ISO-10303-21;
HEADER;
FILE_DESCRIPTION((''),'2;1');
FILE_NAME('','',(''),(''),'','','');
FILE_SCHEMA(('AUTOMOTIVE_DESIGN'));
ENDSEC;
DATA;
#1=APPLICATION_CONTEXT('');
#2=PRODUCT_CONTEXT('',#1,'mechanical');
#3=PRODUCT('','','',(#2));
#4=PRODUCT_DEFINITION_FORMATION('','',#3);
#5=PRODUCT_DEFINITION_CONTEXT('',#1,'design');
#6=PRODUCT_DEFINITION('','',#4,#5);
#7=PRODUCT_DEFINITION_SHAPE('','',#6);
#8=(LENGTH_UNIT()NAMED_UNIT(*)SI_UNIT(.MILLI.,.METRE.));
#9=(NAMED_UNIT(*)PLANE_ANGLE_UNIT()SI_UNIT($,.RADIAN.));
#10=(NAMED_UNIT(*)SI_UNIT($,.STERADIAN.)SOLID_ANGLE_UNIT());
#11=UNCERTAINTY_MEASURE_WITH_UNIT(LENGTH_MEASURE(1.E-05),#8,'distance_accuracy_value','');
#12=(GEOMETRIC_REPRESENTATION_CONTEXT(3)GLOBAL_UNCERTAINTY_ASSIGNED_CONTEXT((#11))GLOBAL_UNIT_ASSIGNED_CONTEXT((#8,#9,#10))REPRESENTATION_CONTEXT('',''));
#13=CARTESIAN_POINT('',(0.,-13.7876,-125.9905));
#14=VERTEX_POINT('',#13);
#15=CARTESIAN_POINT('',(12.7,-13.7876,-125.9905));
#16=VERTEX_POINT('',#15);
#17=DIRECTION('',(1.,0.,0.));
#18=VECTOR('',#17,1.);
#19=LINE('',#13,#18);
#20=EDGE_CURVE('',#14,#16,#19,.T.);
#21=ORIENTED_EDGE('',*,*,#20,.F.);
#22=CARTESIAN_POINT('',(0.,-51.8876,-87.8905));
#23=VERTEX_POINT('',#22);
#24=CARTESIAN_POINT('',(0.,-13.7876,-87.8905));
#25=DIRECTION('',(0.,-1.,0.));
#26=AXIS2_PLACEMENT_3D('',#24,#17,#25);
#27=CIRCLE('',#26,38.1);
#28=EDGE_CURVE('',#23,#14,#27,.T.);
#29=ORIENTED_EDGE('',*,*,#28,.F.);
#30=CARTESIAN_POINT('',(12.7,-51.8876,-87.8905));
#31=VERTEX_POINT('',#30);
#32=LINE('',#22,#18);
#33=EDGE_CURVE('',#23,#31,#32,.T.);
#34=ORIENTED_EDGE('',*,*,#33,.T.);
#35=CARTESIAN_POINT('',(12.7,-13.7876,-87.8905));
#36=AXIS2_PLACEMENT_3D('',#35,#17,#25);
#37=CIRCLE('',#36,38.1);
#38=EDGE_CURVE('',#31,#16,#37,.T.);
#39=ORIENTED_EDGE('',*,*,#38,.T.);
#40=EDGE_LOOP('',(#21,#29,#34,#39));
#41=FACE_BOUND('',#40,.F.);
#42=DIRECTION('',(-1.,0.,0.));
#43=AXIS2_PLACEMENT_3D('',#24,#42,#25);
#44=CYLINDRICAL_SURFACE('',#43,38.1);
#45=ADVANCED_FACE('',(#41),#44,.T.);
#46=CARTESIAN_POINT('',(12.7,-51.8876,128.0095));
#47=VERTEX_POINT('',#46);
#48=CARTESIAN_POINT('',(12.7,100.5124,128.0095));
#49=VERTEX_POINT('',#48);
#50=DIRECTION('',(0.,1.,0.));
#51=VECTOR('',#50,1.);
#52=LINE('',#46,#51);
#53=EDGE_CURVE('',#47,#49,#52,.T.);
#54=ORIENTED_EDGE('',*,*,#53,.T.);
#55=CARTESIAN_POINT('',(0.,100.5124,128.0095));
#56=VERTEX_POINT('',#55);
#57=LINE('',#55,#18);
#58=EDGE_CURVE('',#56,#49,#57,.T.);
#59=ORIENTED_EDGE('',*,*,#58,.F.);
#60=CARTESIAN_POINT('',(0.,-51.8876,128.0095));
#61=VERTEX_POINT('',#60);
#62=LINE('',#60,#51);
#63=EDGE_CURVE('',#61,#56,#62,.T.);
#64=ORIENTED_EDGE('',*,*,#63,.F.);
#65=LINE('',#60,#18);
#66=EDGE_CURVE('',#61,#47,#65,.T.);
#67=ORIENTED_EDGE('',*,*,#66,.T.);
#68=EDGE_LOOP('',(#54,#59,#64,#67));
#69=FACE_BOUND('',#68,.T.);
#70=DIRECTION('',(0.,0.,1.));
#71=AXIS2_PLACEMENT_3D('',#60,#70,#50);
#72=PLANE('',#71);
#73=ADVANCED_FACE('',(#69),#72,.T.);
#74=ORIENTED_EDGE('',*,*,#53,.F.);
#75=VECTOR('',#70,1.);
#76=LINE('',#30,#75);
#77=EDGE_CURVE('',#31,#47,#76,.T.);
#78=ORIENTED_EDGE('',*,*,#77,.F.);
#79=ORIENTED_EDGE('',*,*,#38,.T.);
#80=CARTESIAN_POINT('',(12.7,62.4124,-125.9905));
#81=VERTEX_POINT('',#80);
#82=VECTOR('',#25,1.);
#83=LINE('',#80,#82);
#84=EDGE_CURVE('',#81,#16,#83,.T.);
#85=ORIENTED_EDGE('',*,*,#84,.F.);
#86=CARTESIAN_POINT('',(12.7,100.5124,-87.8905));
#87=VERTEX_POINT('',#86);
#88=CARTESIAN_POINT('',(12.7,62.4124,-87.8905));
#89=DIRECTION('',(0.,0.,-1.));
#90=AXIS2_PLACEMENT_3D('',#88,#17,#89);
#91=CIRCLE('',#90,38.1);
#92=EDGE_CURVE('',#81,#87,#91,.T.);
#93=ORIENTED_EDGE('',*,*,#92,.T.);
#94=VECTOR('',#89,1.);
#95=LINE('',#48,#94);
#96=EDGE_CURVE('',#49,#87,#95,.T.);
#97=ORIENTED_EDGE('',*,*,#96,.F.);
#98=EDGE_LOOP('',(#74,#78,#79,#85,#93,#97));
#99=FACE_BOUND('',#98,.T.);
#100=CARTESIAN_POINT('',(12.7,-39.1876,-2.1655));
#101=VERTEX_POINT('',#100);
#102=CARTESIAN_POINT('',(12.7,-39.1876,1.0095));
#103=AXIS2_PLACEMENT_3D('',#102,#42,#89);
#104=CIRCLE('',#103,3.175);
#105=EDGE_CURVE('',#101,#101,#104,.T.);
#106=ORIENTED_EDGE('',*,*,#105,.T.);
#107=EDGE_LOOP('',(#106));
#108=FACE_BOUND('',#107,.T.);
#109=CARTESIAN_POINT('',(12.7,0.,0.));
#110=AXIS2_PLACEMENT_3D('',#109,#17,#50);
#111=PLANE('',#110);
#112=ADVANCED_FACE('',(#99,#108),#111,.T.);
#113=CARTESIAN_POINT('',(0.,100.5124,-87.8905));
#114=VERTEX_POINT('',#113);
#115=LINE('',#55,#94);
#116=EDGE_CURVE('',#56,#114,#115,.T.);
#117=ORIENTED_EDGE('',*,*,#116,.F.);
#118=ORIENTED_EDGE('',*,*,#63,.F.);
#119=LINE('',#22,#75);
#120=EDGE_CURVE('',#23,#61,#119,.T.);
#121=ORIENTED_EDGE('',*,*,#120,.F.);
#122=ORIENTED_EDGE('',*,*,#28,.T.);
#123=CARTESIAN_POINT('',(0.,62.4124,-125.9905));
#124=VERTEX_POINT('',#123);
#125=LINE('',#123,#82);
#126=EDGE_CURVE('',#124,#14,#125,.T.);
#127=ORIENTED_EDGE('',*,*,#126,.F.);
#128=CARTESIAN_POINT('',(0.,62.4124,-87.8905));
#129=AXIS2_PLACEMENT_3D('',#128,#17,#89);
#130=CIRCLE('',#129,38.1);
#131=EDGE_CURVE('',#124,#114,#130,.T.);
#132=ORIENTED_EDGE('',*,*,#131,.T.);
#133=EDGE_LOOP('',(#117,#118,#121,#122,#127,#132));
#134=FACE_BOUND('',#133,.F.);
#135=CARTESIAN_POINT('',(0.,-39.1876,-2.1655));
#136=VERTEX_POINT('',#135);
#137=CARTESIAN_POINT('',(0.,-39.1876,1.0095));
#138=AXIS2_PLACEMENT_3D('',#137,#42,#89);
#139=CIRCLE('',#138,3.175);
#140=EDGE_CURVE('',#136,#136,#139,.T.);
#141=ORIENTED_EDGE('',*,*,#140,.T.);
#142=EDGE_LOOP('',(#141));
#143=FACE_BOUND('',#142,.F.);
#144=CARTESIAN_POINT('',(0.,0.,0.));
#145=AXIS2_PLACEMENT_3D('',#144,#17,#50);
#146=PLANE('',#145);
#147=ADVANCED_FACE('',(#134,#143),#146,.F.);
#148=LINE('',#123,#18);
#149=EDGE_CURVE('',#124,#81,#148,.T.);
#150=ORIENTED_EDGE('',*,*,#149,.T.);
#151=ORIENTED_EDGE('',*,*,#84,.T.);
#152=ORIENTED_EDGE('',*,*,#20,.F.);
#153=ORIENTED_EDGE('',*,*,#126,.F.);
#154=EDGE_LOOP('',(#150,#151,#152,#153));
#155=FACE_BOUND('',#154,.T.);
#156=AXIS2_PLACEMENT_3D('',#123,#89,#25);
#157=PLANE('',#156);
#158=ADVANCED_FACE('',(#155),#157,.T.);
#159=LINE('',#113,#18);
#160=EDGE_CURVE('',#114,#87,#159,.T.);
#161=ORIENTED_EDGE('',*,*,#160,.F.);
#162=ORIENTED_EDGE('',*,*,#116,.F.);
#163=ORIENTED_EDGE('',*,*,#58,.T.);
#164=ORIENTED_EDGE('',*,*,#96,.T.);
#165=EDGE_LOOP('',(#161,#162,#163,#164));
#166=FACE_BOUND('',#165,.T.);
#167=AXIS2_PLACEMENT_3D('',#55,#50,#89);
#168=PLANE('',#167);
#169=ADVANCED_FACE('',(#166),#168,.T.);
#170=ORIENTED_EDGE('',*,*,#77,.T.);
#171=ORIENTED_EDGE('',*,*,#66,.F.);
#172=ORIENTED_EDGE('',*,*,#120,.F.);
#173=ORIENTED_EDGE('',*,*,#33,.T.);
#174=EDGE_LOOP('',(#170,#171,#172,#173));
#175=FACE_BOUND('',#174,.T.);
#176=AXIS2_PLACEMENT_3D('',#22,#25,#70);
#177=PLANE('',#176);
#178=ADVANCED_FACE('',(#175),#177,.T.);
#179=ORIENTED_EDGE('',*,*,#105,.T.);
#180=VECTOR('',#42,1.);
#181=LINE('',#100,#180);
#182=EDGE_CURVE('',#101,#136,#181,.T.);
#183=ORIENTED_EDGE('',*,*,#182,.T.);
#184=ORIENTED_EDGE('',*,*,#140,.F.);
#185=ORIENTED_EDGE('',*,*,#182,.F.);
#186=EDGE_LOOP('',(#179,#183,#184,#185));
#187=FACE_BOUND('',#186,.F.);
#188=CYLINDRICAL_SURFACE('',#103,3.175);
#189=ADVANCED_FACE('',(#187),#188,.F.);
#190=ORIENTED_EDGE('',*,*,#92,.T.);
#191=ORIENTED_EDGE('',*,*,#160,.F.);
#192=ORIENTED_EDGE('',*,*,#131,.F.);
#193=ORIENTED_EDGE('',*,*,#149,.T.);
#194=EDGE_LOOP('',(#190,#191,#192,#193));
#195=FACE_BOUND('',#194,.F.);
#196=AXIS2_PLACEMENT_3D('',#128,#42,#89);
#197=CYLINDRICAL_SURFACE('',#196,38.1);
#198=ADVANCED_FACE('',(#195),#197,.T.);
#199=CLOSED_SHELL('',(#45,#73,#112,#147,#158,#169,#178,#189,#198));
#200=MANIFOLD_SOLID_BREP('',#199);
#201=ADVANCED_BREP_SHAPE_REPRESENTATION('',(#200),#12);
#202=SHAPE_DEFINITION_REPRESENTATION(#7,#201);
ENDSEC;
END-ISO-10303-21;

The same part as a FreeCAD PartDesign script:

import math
import FreeCAD as App
import Part
import Sketcher

V = App.Vector
Q = App.Units.Quantity

doc = App.newDocument("Part")
body = doc.addObject("PartDesign::Body", "Body")

# Sketch on YZ plane
sketch1 = body.newObject("Sketcher::SketchObject", "Sketch")
sketch1.AttachmentSupport = (doc.getObject("YZ_Plane"), [""])
sketch1.MapMode = "FlatFace"
sketch1.addGeometry([
    Part.LineSegment(V(101, -88, 0), V(101, 128, 0)),  # 0
    Part.LineSegment(V(101, 128, 0), V(-52, 128, 0)),  # 1
    Part.LineSegment(V(-52, 128, 0), V(-52, -88, 0)),  # 2
    Part.ArcOfCircle(Part.Circle(V(-14, -88, 0), V(0, 0, 1), 38), math.radians(180), math.radians(270)),  # 3
    Part.LineSegment(V(-14, -126, 0), V(62, -126, 0)),  # 4
    Part.ArcOfCircle(Part.Circle(V(62, -88, 0), V(0, 0, 1), 38), math.radians(-90), math.radians(0)),  # 5
], False)
sketch1.addConstraint([
    Sketcher.Constraint("Coincident", 0, 2, 1, 1),
    Sketcher.Constraint("Coincident", 1, 2, 2, 1),
    Sketcher.Constraint("Tangent", 2, 2, 3, 1),
    Sketcher.Constraint("Tangent", 3, 2, 4, 1),
    Sketcher.Constraint("Tangent", 4, 2, 5, 1),
    Sketcher.Constraint("Tangent", 5, 2, 0, 1),
    Sketcher.Constraint("Vertical", 0),
    Sketcher.Constraint("Horizontal", 1),
    Sketcher.Constraint("Vertical", 2),
    Sketcher.Constraint("Horizontal", 4),
    Sketcher.Constraint("Equal", 3, 5),
    Sketcher.Constraint("Radius", 3, Q("1.5 in")),
    Sketcher.Constraint("DistanceX", 1, 2, 1, 1, Q("6 in")),
    Sketcher.Constraint("DistanceY", 3, 2, 1, 2, Q("10 in")),
    Sketcher.Constraint("DistanceX", 3, 3, -1, 1, 13.7876),
    Sketcher.Constraint("DistanceY", 3, 3, -1, 1, 87.8905),
])
pad1 = body.newObject("PartDesign::Pad", "Pad")
pad1.Profile = sketch1
pad1.Length = Q("0.5 in")

# Sketch on YZ plane
sketch2 = body.newObject("Sketcher::SketchObject", "Sketch001")
sketch2.AttachmentSupport = (doc.getObject("YZ_Plane"), [""])
sketch2.MapMode = "FlatFace"
sketch2.AttachmentOffset = App.Placement(V(0, 0, 0.5 * 25.4), App.Rotation())
sketch2.addGeometry(Part.Circle(V(-39.2, 1, 0), V(0, 0, 1), 3.2), False)
sketch2.addConstraint([
    Sketcher.Constraint("Diameter", 0, Q("0.25 in")),
    Sketcher.Constraint("DistanceX", 0, 3, -1, 1, 39.1876),
    Sketcher.Constraint("DistanceY", -1, 1, 0, 3, 1.0095),
])
doc.recompute()
hole = body.newObject("PartDesign::Hole", "Hole")
hole.Profile = sketch2
hole.ThreadType = "None"
hole.Diameter = Q("0.25 in")
hole.DepthType = "ThroughAll"

doc.recompute()
